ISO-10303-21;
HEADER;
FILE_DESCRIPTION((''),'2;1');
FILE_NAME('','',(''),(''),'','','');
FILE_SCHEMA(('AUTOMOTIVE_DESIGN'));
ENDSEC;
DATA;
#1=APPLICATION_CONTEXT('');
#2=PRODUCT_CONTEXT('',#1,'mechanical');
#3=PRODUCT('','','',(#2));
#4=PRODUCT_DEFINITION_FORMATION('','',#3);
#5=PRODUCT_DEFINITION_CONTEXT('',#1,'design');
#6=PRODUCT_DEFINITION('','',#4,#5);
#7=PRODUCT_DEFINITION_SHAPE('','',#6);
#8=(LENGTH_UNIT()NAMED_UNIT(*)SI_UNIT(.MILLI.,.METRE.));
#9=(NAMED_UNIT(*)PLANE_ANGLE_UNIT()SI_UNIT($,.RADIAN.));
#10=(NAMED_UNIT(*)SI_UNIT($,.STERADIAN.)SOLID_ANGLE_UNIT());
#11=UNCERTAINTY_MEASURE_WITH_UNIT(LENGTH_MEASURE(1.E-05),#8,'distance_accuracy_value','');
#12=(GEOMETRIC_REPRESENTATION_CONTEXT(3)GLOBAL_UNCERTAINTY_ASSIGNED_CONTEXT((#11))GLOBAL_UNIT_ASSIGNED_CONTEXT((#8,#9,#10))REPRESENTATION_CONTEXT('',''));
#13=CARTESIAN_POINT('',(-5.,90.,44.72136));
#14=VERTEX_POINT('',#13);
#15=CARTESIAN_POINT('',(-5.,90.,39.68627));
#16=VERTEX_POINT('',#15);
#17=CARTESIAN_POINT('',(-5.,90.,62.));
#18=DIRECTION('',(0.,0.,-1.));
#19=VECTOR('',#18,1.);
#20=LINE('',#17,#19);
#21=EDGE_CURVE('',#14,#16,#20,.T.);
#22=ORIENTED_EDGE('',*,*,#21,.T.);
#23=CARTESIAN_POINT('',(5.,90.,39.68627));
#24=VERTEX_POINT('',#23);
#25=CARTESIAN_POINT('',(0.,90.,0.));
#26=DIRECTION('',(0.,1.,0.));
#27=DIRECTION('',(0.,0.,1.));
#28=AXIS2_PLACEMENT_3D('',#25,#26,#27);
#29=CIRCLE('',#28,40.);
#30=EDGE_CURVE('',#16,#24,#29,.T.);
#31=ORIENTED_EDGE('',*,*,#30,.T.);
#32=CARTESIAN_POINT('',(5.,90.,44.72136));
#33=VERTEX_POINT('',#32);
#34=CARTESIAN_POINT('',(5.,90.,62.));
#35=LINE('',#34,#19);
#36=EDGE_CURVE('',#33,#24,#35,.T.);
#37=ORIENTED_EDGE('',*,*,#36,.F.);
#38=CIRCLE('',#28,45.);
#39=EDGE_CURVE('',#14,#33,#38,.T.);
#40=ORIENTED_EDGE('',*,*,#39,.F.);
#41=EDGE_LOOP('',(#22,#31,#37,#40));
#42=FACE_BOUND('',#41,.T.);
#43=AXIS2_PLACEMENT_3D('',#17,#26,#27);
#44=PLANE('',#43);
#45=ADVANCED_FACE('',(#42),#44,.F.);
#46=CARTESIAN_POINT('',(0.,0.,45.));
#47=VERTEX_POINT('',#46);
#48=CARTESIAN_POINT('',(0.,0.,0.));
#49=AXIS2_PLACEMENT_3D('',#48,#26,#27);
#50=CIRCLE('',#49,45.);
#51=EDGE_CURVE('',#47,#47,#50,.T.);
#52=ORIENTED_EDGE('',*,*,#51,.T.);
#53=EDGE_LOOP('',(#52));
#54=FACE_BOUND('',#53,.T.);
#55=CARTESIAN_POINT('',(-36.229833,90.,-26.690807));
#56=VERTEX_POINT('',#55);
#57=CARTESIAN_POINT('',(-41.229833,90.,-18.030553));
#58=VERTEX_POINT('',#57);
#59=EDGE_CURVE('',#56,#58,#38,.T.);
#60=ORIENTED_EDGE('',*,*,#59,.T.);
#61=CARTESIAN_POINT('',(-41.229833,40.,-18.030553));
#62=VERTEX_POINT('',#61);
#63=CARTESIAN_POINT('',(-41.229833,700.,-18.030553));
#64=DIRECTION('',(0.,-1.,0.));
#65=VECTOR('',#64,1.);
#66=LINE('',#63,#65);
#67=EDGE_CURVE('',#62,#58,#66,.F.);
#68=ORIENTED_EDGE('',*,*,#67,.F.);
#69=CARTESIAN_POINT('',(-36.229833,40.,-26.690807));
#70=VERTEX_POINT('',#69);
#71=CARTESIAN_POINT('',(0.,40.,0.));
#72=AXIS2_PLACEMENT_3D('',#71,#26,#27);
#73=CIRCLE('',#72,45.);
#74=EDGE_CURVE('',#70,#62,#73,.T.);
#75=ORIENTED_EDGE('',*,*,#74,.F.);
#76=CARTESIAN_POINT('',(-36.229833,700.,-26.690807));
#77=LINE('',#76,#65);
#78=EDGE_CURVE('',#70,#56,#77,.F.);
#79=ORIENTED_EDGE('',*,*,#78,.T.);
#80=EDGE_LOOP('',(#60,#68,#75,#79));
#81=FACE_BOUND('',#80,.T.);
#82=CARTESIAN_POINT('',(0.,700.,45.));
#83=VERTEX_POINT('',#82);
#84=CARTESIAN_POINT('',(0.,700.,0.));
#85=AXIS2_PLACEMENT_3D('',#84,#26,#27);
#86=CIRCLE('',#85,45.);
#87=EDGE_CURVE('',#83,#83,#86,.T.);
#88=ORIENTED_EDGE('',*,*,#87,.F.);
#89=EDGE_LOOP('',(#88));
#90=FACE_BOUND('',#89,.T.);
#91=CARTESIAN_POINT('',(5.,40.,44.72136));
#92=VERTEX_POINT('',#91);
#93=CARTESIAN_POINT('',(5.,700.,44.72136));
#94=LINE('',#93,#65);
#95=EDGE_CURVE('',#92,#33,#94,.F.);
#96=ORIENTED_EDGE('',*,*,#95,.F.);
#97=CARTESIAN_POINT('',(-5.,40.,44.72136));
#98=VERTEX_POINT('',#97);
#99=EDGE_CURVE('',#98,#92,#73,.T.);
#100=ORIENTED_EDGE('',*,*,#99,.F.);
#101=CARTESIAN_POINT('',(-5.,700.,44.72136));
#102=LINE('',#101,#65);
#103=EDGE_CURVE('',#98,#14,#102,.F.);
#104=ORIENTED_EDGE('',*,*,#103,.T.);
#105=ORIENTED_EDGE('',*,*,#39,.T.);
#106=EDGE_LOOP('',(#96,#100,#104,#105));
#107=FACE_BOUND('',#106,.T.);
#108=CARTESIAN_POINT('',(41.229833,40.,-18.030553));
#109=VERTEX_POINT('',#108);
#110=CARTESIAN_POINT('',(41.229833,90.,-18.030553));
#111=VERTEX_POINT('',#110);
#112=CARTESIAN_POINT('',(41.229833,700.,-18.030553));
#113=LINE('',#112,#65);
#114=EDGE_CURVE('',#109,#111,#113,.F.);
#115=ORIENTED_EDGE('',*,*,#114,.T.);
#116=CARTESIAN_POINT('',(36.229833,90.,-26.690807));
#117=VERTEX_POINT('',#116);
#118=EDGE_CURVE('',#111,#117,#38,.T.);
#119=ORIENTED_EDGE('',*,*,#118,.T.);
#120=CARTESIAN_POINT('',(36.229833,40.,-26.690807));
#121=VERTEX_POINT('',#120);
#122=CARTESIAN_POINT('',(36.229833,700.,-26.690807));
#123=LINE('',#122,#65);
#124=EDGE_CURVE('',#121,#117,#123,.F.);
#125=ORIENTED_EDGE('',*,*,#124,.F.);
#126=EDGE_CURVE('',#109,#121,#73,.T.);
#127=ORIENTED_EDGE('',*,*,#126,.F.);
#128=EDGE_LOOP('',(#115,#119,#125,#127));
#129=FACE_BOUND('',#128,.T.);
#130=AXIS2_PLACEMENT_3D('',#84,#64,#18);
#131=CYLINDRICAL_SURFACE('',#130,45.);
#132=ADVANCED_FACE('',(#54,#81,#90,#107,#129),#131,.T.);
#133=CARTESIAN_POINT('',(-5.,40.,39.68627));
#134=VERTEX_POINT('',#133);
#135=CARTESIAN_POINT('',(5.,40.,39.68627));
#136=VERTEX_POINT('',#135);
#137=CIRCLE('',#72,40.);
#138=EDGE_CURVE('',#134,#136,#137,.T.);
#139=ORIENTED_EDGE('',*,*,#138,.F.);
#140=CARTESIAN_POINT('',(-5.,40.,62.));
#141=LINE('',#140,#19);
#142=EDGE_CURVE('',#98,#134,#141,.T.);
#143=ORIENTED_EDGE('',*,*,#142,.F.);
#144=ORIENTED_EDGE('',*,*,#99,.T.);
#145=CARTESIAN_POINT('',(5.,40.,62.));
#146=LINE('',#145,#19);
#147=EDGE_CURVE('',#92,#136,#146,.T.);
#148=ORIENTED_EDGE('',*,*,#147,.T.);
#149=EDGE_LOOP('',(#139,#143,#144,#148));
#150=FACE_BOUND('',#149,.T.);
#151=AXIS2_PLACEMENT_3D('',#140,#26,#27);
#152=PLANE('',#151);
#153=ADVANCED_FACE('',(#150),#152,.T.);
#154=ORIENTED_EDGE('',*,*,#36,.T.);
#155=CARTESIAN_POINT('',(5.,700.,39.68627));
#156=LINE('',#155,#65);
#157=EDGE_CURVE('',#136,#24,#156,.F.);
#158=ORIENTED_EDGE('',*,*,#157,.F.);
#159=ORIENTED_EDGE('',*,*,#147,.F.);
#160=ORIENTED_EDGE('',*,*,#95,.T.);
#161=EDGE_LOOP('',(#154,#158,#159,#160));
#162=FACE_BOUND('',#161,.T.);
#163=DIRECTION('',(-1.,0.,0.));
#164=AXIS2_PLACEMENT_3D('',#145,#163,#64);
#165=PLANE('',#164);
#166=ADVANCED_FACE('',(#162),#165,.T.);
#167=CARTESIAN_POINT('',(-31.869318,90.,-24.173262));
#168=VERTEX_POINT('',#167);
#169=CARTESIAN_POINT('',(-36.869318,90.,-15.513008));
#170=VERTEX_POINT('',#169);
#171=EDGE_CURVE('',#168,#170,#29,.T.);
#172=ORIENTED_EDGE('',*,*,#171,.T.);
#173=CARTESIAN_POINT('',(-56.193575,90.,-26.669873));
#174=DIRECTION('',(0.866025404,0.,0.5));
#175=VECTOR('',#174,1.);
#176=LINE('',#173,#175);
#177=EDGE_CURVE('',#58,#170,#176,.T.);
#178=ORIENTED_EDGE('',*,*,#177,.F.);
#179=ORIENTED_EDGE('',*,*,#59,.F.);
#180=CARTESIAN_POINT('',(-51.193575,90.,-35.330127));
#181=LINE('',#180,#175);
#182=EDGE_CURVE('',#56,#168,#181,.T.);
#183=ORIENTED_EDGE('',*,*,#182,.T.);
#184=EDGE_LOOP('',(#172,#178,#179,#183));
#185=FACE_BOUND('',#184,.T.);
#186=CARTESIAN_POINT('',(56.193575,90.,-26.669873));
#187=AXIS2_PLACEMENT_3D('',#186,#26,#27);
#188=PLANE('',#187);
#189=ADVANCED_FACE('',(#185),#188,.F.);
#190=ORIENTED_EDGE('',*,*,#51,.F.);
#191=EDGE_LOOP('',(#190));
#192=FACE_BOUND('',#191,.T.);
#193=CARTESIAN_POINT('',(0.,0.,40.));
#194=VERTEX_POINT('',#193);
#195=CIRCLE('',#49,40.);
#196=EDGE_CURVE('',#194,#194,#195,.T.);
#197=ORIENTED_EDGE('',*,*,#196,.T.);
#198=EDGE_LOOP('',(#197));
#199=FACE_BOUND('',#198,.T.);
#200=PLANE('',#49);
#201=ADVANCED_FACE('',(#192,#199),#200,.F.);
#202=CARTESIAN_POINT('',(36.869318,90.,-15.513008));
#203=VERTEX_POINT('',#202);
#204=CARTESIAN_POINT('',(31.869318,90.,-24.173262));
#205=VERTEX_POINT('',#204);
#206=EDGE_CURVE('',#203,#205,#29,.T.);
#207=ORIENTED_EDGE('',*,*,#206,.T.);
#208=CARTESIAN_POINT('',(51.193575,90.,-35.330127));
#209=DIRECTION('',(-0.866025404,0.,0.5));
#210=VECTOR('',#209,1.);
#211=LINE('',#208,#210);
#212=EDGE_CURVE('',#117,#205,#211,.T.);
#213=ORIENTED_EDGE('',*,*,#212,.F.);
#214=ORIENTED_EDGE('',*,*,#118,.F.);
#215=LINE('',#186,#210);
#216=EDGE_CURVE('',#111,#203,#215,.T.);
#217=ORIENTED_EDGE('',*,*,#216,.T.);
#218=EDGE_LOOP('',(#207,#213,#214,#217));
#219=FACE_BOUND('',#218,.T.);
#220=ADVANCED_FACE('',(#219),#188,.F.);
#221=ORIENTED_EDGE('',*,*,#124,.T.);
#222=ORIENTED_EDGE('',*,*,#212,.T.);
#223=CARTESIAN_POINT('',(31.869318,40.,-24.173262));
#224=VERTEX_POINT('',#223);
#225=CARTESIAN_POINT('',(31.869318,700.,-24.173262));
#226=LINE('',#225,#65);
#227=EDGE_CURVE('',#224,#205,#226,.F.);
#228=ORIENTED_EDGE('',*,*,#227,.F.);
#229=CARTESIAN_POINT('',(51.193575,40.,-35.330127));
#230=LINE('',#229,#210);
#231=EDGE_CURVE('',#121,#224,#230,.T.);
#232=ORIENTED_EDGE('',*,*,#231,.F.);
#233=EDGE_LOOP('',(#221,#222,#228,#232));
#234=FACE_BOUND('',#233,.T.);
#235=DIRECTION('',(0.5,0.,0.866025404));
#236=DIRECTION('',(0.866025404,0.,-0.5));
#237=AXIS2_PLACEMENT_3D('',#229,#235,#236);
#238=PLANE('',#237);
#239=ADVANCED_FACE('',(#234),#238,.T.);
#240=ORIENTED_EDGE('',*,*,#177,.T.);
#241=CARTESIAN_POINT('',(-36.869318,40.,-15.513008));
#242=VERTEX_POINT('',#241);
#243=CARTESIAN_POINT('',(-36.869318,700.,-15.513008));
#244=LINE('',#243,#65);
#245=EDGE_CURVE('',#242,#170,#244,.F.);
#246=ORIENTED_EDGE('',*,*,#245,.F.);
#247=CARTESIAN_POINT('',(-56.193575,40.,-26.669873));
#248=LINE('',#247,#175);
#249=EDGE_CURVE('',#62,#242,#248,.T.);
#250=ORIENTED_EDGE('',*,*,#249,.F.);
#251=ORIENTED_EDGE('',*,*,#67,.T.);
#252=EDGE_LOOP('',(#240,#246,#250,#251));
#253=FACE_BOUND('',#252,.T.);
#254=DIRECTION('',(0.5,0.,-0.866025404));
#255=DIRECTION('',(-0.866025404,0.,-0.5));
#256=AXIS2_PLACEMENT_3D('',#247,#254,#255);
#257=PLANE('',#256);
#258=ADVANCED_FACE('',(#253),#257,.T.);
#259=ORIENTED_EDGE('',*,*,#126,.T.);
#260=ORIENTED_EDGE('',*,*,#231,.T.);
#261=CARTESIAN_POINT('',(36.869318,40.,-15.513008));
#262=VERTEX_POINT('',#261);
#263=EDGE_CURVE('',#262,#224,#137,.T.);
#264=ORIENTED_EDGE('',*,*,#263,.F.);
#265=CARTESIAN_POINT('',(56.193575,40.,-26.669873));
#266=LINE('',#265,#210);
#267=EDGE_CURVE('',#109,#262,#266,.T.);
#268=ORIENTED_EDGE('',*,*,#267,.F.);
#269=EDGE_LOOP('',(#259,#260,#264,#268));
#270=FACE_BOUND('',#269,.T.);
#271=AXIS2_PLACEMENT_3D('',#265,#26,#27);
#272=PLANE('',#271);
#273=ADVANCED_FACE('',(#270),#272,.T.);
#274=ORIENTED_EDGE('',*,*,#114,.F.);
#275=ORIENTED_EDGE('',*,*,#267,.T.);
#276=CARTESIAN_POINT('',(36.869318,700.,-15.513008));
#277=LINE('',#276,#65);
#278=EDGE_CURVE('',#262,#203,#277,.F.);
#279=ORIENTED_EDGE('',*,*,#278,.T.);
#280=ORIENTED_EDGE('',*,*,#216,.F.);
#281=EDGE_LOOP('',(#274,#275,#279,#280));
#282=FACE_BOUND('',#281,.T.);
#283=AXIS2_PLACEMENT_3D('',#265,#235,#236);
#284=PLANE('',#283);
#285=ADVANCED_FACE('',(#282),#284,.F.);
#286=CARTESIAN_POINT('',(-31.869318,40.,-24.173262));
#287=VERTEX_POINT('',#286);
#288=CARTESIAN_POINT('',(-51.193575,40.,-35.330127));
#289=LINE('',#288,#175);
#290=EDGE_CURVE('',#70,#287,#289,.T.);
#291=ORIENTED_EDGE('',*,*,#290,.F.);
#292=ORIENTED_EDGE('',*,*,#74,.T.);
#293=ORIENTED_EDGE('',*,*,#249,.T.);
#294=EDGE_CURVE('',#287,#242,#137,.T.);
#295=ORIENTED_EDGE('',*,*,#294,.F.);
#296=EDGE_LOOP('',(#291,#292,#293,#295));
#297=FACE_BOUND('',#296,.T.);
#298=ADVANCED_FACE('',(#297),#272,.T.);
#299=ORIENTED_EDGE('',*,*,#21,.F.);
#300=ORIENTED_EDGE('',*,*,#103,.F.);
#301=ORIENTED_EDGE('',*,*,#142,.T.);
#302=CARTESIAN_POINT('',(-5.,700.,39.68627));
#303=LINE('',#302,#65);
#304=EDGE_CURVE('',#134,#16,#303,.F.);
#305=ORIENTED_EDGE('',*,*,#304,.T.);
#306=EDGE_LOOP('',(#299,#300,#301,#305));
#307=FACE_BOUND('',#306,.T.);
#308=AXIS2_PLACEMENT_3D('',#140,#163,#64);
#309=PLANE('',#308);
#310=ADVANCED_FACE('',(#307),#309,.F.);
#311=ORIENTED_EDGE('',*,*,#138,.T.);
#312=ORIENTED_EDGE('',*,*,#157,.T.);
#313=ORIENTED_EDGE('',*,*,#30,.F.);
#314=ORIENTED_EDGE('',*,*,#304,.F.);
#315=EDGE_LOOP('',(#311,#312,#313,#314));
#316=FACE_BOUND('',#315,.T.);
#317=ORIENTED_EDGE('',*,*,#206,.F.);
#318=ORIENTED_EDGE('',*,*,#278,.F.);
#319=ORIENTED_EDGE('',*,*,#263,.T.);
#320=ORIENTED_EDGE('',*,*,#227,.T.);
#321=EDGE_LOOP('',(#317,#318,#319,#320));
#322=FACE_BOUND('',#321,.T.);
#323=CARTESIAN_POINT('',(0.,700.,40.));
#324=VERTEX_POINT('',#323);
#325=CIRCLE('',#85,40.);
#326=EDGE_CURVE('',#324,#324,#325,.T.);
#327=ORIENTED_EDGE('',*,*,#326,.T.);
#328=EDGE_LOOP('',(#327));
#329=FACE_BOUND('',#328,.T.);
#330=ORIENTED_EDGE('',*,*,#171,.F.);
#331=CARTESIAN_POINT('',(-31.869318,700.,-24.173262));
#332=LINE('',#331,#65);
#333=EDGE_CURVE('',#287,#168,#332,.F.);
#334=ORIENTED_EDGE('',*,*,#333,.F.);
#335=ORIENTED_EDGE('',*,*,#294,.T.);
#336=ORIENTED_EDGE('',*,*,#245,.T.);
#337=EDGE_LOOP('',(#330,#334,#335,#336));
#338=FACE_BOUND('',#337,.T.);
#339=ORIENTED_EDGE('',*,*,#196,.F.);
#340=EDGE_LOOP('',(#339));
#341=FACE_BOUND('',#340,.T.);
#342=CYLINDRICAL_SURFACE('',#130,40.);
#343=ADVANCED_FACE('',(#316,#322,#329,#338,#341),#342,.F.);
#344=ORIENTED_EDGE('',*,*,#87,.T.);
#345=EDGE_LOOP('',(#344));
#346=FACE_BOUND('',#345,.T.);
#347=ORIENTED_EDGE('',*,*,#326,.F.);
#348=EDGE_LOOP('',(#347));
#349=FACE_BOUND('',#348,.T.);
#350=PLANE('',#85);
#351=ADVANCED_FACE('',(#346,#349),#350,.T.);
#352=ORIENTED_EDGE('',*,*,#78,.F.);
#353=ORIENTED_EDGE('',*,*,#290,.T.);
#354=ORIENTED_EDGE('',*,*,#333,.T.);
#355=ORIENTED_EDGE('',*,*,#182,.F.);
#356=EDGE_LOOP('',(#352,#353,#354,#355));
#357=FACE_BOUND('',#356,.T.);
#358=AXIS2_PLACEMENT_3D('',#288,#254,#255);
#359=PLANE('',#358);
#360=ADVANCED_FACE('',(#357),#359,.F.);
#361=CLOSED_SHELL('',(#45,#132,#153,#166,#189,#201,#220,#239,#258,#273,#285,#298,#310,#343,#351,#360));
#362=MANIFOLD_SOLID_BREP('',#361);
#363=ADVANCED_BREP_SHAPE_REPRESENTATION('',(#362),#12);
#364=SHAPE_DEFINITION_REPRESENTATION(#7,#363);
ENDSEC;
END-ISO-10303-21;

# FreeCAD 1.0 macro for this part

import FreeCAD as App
import Part
import Sketcher
from FreeCAD import Vector


def add_polygon(sketch, points):
    """Adds a closed chain of lines whose ends are joined by coincident constraints."""
    first, n = sketch.GeometryCount, len(points)
    for a, b in zip(points, points[1:] + points[:1]):
        sketch.addGeometry(Part.LineSegment(App.Vector(*a, 0), App.Vector(*b, 0)), False)
    for i in range(n):
        sketch.addConstraint(Sketcher.Constraint("Coincident", first + i, 2, first + (i + 1) % n, 1))

doc = App.newDocument("Part")
params = doc.addObject("Spreadsheet::Sheet", "Params")
for row, (alias, value) in enumerate([
    ("sketch1_diameter", "90 mm"),
    ("sketch1_diameter2", "80 mm"),
    ("pad1_length", "700 mm"),
    ("sketch2_width", "10 mm"),
    ("sketch2_height", "50 mm"),
    ("pocket1_length", "62 mm"),
], start=1):
    params.set(f"A{row}", alias)
    params.set(f"B{row}", "=" + value)
    params.setAlias(f"B{row}", alias)

body = doc.addObject("PartDesign::Body", "Body")

sketch1 = body.newObject("Sketcher::SketchObject", "Sketch")
sketch1.AttachmentSupport = (doc.getObject("XZ_Plane"), [""])
sketch1.MapMode = "FlatFace"
sketch1.addGeometry([
    Part.Circle(Vector(0, 0, 0), Vector(0, 0, 1), 45),
    Part.Circle(Vector(0, 0, 0), Vector(0, 0, 1), 40),
], False)
sketch1.addConstraint([
    Sketcher.Constraint("Coincident", 0, 3, -1, 1),
    Sketcher.Constraint("Coincident", 1, 3, -1, 1),
    Sketcher.Constraint("Diameter", 0, 90.0),
    Sketcher.Constraint("Diameter", 1, 80.0),
])
sketch1.setExpression("Constraints[2]", "Params.sketch1_diameter")
sketch1.setExpression("Constraints[3]", "Params.sketch1_diameter2")
pad1 = body.newObject("PartDesign::Pad", "Pad")
pad1.Profile = sketch1
pad1.setExpression("Length", "Params.pad1_length")
pad1.Reversed = True

sketch2 = body.newObject("Sketcher::SketchObject", "Sketch001")
sketch2.AttachmentSupport = (doc.getObject("XY_Plane"), [""])
sketch2.MapMode = "FlatFace"
add_polygon(sketch2, [(-5, 90), (-5, 40), (5, 40), (5, 90)])
sketch2.addConstraint([
    Sketcher.Constraint("Vertical", 0),
    Sketcher.Constraint("Horizontal", 1),
    Sketcher.Constraint("Vertical", 2),
    Sketcher.Constraint("Horizontal", 3),
    Sketcher.Constraint("DistanceX", 1, 1, 1, 2, 10.0),
    Sketcher.Constraint("DistanceY", 0, 2, 0, 1, 50.0),
    Sketcher.Constraint("DistanceX", 0, 2, -1, 1, 5.0),
    Sketcher.Constraint("DistanceY", -1, 1, 0, 2, 40.0),
])
sketch2.setExpression("Constraints[8]", "Params.sketch2_width")
sketch2.setExpression("Constraints[9]", "Params.sketch2_height")
pocket1 = body.newObject("PartDesign::Pocket", "Pocket")
pocket1.Profile = sketch2
pocket1.setExpression("Length", "Params.pocket1_length")
pocket1.Reversed = True
doc.recompute()

polarpattern = body.newObject("PartDesign::PolarPattern", "PolarPattern")
polarpattern.Originals = [pocket1]
polarpattern.Axis = (doc.getObject("Y_Axis"), [""])
polarpattern.Angle = 360
polarpattern.Occurrences = 3
body.Tip = polarpattern

doc.recompute()
